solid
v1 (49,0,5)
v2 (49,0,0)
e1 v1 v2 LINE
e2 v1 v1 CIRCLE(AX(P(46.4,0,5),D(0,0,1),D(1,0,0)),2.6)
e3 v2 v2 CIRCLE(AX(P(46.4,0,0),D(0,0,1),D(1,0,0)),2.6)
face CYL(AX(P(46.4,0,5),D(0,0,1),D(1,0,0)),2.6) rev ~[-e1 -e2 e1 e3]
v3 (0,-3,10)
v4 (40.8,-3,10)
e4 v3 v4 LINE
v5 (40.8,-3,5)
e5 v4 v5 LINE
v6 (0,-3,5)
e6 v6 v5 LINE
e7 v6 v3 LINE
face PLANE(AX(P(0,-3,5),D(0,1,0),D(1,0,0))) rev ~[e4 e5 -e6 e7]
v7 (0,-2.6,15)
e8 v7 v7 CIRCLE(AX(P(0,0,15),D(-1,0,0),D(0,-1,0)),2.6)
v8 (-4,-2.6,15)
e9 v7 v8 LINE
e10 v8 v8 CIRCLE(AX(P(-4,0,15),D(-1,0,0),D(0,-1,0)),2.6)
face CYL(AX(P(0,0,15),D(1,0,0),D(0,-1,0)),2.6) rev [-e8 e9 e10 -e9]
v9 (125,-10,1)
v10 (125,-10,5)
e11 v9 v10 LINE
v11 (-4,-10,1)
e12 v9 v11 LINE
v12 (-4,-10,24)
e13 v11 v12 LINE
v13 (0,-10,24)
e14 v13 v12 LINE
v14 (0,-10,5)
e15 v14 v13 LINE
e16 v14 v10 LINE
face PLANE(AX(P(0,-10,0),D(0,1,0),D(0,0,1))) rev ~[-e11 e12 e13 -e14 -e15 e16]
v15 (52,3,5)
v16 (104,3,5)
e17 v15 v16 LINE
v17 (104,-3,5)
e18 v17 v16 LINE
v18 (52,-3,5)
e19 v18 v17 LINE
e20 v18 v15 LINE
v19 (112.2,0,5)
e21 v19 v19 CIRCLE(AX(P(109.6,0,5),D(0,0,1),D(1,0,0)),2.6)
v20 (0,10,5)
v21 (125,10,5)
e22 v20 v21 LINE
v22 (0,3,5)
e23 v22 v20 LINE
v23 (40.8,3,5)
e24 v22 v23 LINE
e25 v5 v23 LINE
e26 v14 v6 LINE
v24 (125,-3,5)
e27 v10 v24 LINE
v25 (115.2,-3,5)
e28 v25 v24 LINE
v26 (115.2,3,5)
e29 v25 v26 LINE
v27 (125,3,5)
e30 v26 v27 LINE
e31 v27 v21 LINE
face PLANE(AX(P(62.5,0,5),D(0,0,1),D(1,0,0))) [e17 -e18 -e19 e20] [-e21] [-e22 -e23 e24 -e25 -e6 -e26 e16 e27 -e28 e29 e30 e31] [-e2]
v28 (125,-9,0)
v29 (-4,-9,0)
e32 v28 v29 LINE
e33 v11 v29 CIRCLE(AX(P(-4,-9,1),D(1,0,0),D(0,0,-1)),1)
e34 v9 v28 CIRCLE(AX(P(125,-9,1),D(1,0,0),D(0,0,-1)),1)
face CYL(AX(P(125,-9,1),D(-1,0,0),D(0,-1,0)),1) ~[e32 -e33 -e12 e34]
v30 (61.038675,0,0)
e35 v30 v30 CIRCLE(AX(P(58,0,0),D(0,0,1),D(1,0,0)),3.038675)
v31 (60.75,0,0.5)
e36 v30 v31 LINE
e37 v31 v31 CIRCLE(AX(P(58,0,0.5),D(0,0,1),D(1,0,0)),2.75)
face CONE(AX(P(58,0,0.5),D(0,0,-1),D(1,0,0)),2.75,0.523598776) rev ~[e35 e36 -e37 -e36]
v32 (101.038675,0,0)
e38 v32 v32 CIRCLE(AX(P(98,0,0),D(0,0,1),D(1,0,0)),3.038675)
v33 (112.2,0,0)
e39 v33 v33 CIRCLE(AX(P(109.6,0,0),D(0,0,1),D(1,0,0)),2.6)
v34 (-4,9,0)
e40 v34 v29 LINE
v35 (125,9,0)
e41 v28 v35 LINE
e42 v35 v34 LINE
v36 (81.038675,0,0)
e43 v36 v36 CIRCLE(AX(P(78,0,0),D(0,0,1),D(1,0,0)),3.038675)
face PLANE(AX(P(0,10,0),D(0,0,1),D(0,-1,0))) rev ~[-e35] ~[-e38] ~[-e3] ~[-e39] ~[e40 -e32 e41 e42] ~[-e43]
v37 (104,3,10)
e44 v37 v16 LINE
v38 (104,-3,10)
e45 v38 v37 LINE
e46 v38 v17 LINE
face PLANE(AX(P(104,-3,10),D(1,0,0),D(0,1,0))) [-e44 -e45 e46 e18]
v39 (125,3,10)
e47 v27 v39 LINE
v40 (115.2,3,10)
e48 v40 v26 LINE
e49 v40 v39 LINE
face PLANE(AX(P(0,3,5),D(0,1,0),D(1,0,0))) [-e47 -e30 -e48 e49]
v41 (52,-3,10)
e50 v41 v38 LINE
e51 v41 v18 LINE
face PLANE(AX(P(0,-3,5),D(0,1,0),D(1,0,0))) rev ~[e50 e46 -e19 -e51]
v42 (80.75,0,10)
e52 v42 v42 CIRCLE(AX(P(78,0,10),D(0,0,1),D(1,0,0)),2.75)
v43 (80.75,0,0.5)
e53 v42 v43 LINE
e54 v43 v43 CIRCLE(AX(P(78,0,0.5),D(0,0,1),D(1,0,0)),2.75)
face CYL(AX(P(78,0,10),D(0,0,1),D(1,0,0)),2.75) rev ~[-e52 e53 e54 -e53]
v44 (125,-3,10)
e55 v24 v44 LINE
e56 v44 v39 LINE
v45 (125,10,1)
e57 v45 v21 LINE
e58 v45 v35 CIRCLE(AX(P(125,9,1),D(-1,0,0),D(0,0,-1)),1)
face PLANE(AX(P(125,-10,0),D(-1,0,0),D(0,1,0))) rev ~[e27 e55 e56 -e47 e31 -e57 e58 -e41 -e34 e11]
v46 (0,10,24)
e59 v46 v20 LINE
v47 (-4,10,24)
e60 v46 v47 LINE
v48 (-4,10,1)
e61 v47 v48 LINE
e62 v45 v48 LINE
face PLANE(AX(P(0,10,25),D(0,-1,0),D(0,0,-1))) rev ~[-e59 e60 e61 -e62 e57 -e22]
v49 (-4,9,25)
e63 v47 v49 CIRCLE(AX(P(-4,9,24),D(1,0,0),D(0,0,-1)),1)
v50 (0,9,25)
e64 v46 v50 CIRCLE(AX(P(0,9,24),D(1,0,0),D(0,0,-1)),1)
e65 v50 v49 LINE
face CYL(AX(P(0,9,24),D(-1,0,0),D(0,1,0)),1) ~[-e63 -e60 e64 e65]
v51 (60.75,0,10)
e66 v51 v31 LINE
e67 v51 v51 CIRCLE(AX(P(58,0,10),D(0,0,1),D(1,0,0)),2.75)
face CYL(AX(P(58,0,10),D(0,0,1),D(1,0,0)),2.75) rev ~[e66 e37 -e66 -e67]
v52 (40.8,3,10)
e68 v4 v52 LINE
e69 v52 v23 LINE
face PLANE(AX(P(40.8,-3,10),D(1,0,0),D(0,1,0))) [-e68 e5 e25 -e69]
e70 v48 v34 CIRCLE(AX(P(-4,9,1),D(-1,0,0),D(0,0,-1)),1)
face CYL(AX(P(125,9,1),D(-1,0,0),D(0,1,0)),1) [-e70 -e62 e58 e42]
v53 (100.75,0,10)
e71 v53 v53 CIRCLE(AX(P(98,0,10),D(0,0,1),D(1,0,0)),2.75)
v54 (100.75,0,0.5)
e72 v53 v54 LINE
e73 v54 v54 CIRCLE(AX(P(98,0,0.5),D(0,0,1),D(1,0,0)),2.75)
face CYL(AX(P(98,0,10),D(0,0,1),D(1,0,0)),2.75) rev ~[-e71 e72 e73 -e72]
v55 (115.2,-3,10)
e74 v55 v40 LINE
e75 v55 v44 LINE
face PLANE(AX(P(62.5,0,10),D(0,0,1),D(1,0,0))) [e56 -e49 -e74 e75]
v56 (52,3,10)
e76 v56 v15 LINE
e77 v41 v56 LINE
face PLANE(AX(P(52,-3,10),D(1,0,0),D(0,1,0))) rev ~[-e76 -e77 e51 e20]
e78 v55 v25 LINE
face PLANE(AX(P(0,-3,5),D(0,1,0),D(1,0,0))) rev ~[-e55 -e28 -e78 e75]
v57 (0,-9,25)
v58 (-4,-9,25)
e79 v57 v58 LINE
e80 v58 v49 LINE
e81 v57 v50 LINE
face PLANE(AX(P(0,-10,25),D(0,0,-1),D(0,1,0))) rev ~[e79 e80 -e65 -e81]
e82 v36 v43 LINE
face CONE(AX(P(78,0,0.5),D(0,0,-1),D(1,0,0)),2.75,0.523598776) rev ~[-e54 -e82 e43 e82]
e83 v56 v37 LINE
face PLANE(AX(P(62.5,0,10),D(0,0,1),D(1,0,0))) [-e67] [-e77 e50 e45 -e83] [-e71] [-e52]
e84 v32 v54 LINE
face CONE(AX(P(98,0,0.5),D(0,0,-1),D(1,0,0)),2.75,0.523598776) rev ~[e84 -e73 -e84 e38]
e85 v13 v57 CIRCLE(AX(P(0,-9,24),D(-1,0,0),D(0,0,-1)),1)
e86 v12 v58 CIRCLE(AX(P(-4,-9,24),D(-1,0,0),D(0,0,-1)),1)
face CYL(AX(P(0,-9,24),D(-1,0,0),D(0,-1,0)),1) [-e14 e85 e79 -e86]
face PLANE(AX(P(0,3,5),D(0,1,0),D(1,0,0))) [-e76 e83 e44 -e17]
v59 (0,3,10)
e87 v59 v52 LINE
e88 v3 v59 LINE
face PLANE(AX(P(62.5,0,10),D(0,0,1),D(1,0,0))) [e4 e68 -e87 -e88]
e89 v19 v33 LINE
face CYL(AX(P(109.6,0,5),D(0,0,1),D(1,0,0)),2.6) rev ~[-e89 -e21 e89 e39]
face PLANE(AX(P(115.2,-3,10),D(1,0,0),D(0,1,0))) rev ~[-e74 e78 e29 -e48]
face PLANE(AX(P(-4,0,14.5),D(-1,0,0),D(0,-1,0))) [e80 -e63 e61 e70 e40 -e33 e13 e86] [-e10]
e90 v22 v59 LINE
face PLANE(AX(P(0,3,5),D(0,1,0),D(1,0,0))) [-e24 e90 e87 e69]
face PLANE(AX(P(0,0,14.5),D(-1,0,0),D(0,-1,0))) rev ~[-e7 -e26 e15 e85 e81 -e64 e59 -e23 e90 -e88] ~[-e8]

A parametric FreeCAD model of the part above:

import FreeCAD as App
import Part
import Sketcher
Q = App.Units.Quantity


def edges_at(feature, points):
    """Names of the edges that pass closest to the given points."""
    edges = feature.Shape.Edges
    near = lambda p: min(range(len(edges)), key=lambda i: edges[i].distToShape(Part.Vertex(*p))[0])
    return sorted({f"Edge{near(p) + 1}" for p in points})

doc = App.newDocument("Part")
body = doc.addObject("PartDesign::Body", "Body")

# Sketch on XY plane
sketch1 = doc.addObject("Sketcher::SketchObject", "Sketch")
body.addObject(sketch1)
sketch1.AttachmentSupport = (doc.XY_Plane, [""])
sketch1.MapMode = "FlatFace"
sketch1.addGeometry(Part.LineSegment(App.Vector(0, 10, 0), App.Vector(0, -10, 0)), False)
sketch1.addGeometry(Part.LineSegment(App.Vector(0, -10, 0), App.Vector(125, -10, 0)), False)
sketch1.addGeometry(Part.LineSegment(App.Vector(125, -10, 0), App.Vector(125, 10, 0)), False)
sketch1.addGeometry(Part.LineSegment(App.Vector(125, 10, 0), App.Vector(0, 10, 0)), False)
sketch1.addConstraint(Sketcher.Constraint("Coincident", 0, 2, 1, 1))
sketch1.addConstraint(Sketcher.Constraint("Coincident", 1, 2, 2, 1))
sketch1.addConstraint(Sketcher.Constraint("Coincident", 2, 2, 3, 1))
sketch1.addConstraint(Sketcher.Constraint("Coincident", 3, 2, 0, 1))
sketch1.addConstraint(Sketcher.Constraint("Vertical", 0))
sketch1.addConstraint(Sketcher.Constraint("Horizontal", 1))
sketch1.addConstraint(Sketcher.Constraint("Vertical", 2))
sketch1.addConstraint(Sketcher.Constraint("Horizontal", 3))
sketch1.addConstraint(Sketcher.Constraint("Symmetric", 0, 2, 3, 2, -1, 1))
sketch1.addConstraint(Sketcher.Constraint("DistanceX", 1, 1, 1, 2, Q("125 mm")))
sketch1.addConstraint(Sketcher.Constraint("DistanceY", 0, 2, 0, 1, Q("20 mm")))
pad1 = doc.addObject("PartDesign::Pad", "Pad")
body.addObject(pad1)
pad1.Profile = sketch1
pad1.Length = 5

# Sketch on XY plane
sketch2 = doc.addObject("Sketcher::SketchObject", "Sketch001")
body.addObject(sketch2)
sketch2.AttachmentSupport = (doc.XY_Plane, [""])
sketch2.MapMode = "FlatFace"
sketch2.AttachmentOffset = App.Placement(App.Vector(0, 0, 5), App.Rotation())
sketch2.addGeometry(Part.LineSegment(App.Vector(0, 3, 0), App.Vector(0, -3, 0)), False)
sketch2.addGeometry(Part.LineSegment(App.Vector(0, -3, 0), App.Vector(125, -3, 0)), False)
sketch2.addGeometry(Part.LineSegment(App.Vector(125, -3, 0), App.Vector(125, 3, 0)), False)
sketch2.addGeometry(Part.LineSegment(App.Vector(125, 3, 0), App.Vector(0, 3, 0)), False)
sketch2.addConstraint(Sketcher.Constraint("Coincident", 0, 2, 1, 1))
sketch2.addConstraint(Sketcher.Constraint("Coincident", 1, 2, 2, 1))
sketch2.addConstraint(Sketcher.Constraint("Coincident", 2, 2, 3, 1))
sketch2.addConstraint(Sketcher.Constraint("Coincident", 3, 2, 0, 1))
sketch2.addConstraint(Sketcher.Constraint("Vertical", 0))
sketch2.addConstraint(Sketcher.Constraint("Horizontal", 1))
sketch2.addConstraint(Sketcher.Constraint("Vertical", 2))
sketch2.addConstraint(Sketcher.Constraint("Horizontal", 3))
sketch2.addConstraint(Sketcher.Constraint("Symmetric", 0, 2, 3, 2, -1, 1))
sketch2.addConstraint(Sketcher.Constraint("DistanceX", 1, 1, 1, 2, Q("125 mm")))
sketch2.addConstraint(Sketcher.Constraint("DistanceY", 0, 2, 0, 1, Q("6 mm")))
pad2 = doc.addObject("PartDesign::Pad", "Pad001")
body.addObject(pad2)
pad2.Profile = sketch2
pad2.Length = 5

# Sketch on XY plane
sketch3 = doc.addObject("Sketcher::SketchObject", "Sketch002")
body.addObject(sketch3)
sketch3.AttachmentSupport = (doc.XY_Plane, [""])
sketch3.MapMode = "FlatFace"
sketch3.AttachmentOffset = App.Placement(App.Vector(0, 0, 10), App.Rotation())
sketch3.addGeometry(Part.Circle(App.Vector(98, 0, 0), App.Vector(0, 0, 1), 2.75), False)
sketch3.addGeometry(Part.Circle(App.Vector(78, 0, 0), App.Vector(0, 0, 1), 2.75), False)
sketch3.addGeometry(Part.Circle(App.Vector(58, 0, 0), App.Vector(0, 0, 1), 2.75), False)
sketch3.addConstraint(Sketcher.Constraint("Equal", 0, 1))
sketch3.addConstraint(Sketcher.Constraint("Equal", 1, 2))
sketch3.addConstraint(Sketcher.Constraint("PointOnObject", 0, 3, -1))
sketch3.addConstraint(Sketcher.Constraint("PointOnObject", 1, 3, -1))
sketch3.addConstraint(Sketcher.Constraint("PointOnObject", 2, 3, -1))
sketch3.addConstraint(Sketcher.Constraint("Diameter", 0, Q("5.5 mm")))
sketch3.addConstraint(Sketcher.Constraint("DistanceX", -1, 1, 0, 3, Q("98 mm")))
sketch3.addConstraint(Sketcher.Constraint("DistanceX", -1, 1, 1, 3, Q("78 mm")))
sketch3.addConstraint(Sketcher.Constraint("DistanceX", -1, 1, 2, 3, Q("58 mm")))
pocket1 = doc.addObject("PartDesign::Pocket", "Pocket")
body.addObject(pocket1)
pocket1.Profile = sketch3
pocket1.Length = 25

# Sketch on XY plane
sketch4 = doc.addObject("Sketcher::SketchObject", "Sketch003")
body.addObject(sketch4)
sketch4.AttachmentSupport = (doc.XY_Plane, [""])
sketch4.MapMode = "FlatFace"
sketch4.AttachmentOffset = App.Placement(App.Vector(0, 0, 10), App.Rotation())
sketch4.addGeometry(Part.LineSegment(App.Vector(104, 3, 0), App.Vector(104, -3, 0)), False)
sketch4.addGeometry(Part.LineSegment(App.Vector(104, -3, 0), App.Vector(115.2, -3, 0)), False)
sketch4.addGeometry(Part.LineSegment(App.Vector(115.2, -3, 0), App.Vector(115.2, 3, 0)), False)
sketch4.addGeometry(Part.LineSegment(App.Vector(115.2, 3, 0), App.Vector(104, 3, 0)), False)
sketch4.addGeometry(Part.LineSegment(App.Vector(40.8, 3, 0), App.Vector(40.8, -3, 0)), False)
sketch4.addGeometry(Part.LineSegment(App.Vector(40.8, -3, 0), App.Vector(52, -3, 0)), False)
sketch4.addGeometry(Part.LineSegment(App.Vector(52, -3, 0), App.Vector(52, 3, 0)), False)
sketch4.addGeometry(Part.LineSegment(App.Vector(52, 3, 0), App.Vector(40.8, 3, 0)), False)
sketch4.addConstraint(Sketcher.Constraint("Coincident", 0, 2, 1, 1))
sketch4.addConstraint(Sketcher.Constraint("Coincident", 1, 2, 2, 1))
sketch4.addConstraint(Sketcher.Constraint("Coincident", 2, 2, 3, 1))
sketch4.addConstraint(Sketcher.Constraint("Coincident", 3, 2, 0, 1))
sketch4.addConstraint(Sketcher.Constraint("Coincident", 4, 2, 5, 1))
sketch4.addConstraint(Sketcher.Constraint("Coincident", 5, 2, 6, 1))
sketch4.addConstraint(Sketcher.Constraint("Coincident", 6, 2, 7, 1))
sketch4.addConstraint(Sketcher.Constraint("Coincident", 7, 2, 4, 1))
sketch4.addConstraint(Sketcher.Constraint("Vertical", 0))
sketch4.addConstraint(Sketcher.Constraint("Horizontal", 1))
sketch4.addConstraint(Sketcher.Constraint("Vertical", 2))
sketch4.addConstraint(Sketcher.Constraint("Horizontal", 3))
sketch4.addConstraint(Sketcher.Constraint("Vertical", 4))
sketch4.addConstraint(Sketcher.Constraint("Horizontal", 5))
sketch4.addConstraint(Sketcher.Constraint("Vertical", 6))
sketch4.addConstraint(Sketcher.Constraint("Horizontal", 7))
sketch4.addConstraint(Sketcher.Constraint("Horizontal", 1, 2, 4, 2))
sketch4.addConstraint(Sketcher.Constraint("Horizontal", 3, 2, 6, 2))
sketch4.addConstraint(Sketcher.Constraint("Equal", 3, 5))
sketch4.addConstraint(Sketcher.Constraint("DistanceY", 0, 2, 0, 1, Q("6 mm")))
sketch4.addConstraint(Sketcher.Constraint("DistanceX", 1, 1, 1, 2, Q("11.2 mm")))
sketch4.addConstraint(Sketcher.Constraint("DistanceX", -1, 1, 0, 2, Q("104 mm")))
sketch4.addConstraint(Sketcher.Constraint("DistanceY", 0, 2, -1, 1, Q("3 mm")))
sketch4.addConstraint(Sketcher.Constraint("DistanceX", -1, 1, 5, 2, Q("52 mm")))
pocket2 = doc.addObject("PartDesign::Pocket", "Pocket001")
body.addObject(pocket2)
pocket2.Profile = sketch4
pocket2.Length = 5

# Sketch on XY plane
sketch5 = doc.addObject("Sketcher::SketchObject", "Sketch004")
body.addObject(sketch5)
sketch5.AttachmentSupport = (doc.XY_Plane, [""])
sketch5.MapMode = "FlatFace"
sketch5.AttachmentOffset = App.Placement(App.Vector(0, 0, 5), App.Rotation())
sketch5.addGeometry(Part.Circle(App.Vector(46.4, 0, 0), App.Vector(0, 0, 1), 2.6), False)
sketch5.addGeometry(Part.Circle(App.Vector(109.6, 0, 0), App.Vector(0, 0, 1), 2.6), False)
sketch5.addConstraint(Sketcher.Constraint("Equal", 0, 1))
sketch5.addConstraint(Sketcher.Constraint("PointOnObject", 0, 3, -1))
sketch5.addConstraint(Sketcher.Constraint("PointOnObject", 1, 3, -1))
sketch5.addConstraint(Sketcher.Constraint("Diameter", 0, Q("5.2 mm")))
sketch5.addConstraint(Sketcher.Constraint("DistanceX", -1, 1, 0, 3, Q("46.4 mm")))
sketch5.addConstraint(Sketcher.Constraint("DistanceX", -1, 1, 1, 3, Q("109.6 mm")))
pocket3 = doc.addObject("PartDesign::Pocket", "Pocket002")
body.addObject(pocket3)
pocket3.Profile = sketch5
pocket3.Type = "ThroughAll"

# Sketch on YZ plane
sketch6 = doc.addObject("Sketcher::SketchObject", "Sketch005")
body.addObject(sketch6)
sketch6.AttachmentSupport = (doc.YZ_Plane, [""])
sketch6.MapMode = "FlatFace"
sketch6.addGeometry(Part.LineSegment(App.Vector(10, 25, 0), App.Vector(10, 0, 0)), False)
sketch6.addGeometry(Part.LineSegment(App.Vector(10, 0, 0), App.Vector(-10, 0, 0)), False)
sketch6.addGeometry(Part.LineSegment(App.Vector(-10, 0, 0), App.Vector(-10, 25, 0)), False)
sketch6.addGeometry(Part.LineSegment(App.Vector(-10, 25, 0), App.Vector(10, 25, 0)), False)
sketch6.addGeometry(Part.Circle(App.Vector(0, 15, 0), App.Vector(0, 0, 1), 2.6), False)
sketch6.addConstraint(Sketcher.Constraint("Coincident", 0, 2, 1, 1))
sketch6.addConstraint(Sketcher.Constraint("Coincident", 1, 2, 2, 1))
sketch6.addConstraint(Sketcher.Constraint("Coincident", 2, 2, 3, 1))
sketch6.addConstraint(Sketcher.Constraint("Coincident", 3, 2, 0, 1))
sketch6.addConstraint(Sketcher.Constraint("Vertical", 0))
sketch6.addConstraint(Sketcher.Constraint("Horizontal", 1))
sketch6.addConstraint(Sketcher.Constraint("Vertical", 2))
sketch6.addConstraint(Sketcher.Constraint("Horizontal", 3))
sketch6.addConstraint(Sketcher.Constraint("Symmetric", 0, 2, 1, 2, -1, 1))
sketch6.addConstraint(Sketcher.Constraint("PointOnObject", 4, 3, -2))
sketch6.addConstraint(Sketcher.Constraint("Diameter", 4, Q("5.2 mm")))
sketch6.addConstraint(Sketcher.Constraint("DistanceX", 1, 2, 1, 1, Q("20 mm")))
sketch6.addConstraint(Sketcher.Constraint("DistanceY", 0, 2, 0, 1, Q("25 mm")))
sketch6.addConstraint(Sketcher.Constraint("DistanceY", -1, 1, 4, 3, Q("15 mm")))
pad3 = doc.addObject("PartDesign::Pad", "Pad002")
body.addObject(pad3)
pad3.Profile = sketch6
pad3.Length = 4
pad3.Reversed = True
doc.recompute()

fillet = doc.addObject("PartDesign::Fillet", "Fillet")
body.addObject(fillet)
fillet.Base = (pad3, edges_at(pad3, [
    (-2, -10, 25),
    (-2, 10, 25),
    (60.5, -10, 0),
    (60.5, 10, 0),
]))
fillet.Radius = 1
doc.recompute()

chamfer = doc.addObject("PartDesign::Chamfer", "Chamfer")
body.addObject(chamfer)
chamfer.Base = (fillet, edges_at(fillet, [(55.25, 0, 0), (75.25, 0, 0), (95.25, 0, 0)]))
chamfer.ChamferType = "Two distances"
chamfer.Size = 0.288675
chamfer.Size2 = 0.5

doc.recompute()
